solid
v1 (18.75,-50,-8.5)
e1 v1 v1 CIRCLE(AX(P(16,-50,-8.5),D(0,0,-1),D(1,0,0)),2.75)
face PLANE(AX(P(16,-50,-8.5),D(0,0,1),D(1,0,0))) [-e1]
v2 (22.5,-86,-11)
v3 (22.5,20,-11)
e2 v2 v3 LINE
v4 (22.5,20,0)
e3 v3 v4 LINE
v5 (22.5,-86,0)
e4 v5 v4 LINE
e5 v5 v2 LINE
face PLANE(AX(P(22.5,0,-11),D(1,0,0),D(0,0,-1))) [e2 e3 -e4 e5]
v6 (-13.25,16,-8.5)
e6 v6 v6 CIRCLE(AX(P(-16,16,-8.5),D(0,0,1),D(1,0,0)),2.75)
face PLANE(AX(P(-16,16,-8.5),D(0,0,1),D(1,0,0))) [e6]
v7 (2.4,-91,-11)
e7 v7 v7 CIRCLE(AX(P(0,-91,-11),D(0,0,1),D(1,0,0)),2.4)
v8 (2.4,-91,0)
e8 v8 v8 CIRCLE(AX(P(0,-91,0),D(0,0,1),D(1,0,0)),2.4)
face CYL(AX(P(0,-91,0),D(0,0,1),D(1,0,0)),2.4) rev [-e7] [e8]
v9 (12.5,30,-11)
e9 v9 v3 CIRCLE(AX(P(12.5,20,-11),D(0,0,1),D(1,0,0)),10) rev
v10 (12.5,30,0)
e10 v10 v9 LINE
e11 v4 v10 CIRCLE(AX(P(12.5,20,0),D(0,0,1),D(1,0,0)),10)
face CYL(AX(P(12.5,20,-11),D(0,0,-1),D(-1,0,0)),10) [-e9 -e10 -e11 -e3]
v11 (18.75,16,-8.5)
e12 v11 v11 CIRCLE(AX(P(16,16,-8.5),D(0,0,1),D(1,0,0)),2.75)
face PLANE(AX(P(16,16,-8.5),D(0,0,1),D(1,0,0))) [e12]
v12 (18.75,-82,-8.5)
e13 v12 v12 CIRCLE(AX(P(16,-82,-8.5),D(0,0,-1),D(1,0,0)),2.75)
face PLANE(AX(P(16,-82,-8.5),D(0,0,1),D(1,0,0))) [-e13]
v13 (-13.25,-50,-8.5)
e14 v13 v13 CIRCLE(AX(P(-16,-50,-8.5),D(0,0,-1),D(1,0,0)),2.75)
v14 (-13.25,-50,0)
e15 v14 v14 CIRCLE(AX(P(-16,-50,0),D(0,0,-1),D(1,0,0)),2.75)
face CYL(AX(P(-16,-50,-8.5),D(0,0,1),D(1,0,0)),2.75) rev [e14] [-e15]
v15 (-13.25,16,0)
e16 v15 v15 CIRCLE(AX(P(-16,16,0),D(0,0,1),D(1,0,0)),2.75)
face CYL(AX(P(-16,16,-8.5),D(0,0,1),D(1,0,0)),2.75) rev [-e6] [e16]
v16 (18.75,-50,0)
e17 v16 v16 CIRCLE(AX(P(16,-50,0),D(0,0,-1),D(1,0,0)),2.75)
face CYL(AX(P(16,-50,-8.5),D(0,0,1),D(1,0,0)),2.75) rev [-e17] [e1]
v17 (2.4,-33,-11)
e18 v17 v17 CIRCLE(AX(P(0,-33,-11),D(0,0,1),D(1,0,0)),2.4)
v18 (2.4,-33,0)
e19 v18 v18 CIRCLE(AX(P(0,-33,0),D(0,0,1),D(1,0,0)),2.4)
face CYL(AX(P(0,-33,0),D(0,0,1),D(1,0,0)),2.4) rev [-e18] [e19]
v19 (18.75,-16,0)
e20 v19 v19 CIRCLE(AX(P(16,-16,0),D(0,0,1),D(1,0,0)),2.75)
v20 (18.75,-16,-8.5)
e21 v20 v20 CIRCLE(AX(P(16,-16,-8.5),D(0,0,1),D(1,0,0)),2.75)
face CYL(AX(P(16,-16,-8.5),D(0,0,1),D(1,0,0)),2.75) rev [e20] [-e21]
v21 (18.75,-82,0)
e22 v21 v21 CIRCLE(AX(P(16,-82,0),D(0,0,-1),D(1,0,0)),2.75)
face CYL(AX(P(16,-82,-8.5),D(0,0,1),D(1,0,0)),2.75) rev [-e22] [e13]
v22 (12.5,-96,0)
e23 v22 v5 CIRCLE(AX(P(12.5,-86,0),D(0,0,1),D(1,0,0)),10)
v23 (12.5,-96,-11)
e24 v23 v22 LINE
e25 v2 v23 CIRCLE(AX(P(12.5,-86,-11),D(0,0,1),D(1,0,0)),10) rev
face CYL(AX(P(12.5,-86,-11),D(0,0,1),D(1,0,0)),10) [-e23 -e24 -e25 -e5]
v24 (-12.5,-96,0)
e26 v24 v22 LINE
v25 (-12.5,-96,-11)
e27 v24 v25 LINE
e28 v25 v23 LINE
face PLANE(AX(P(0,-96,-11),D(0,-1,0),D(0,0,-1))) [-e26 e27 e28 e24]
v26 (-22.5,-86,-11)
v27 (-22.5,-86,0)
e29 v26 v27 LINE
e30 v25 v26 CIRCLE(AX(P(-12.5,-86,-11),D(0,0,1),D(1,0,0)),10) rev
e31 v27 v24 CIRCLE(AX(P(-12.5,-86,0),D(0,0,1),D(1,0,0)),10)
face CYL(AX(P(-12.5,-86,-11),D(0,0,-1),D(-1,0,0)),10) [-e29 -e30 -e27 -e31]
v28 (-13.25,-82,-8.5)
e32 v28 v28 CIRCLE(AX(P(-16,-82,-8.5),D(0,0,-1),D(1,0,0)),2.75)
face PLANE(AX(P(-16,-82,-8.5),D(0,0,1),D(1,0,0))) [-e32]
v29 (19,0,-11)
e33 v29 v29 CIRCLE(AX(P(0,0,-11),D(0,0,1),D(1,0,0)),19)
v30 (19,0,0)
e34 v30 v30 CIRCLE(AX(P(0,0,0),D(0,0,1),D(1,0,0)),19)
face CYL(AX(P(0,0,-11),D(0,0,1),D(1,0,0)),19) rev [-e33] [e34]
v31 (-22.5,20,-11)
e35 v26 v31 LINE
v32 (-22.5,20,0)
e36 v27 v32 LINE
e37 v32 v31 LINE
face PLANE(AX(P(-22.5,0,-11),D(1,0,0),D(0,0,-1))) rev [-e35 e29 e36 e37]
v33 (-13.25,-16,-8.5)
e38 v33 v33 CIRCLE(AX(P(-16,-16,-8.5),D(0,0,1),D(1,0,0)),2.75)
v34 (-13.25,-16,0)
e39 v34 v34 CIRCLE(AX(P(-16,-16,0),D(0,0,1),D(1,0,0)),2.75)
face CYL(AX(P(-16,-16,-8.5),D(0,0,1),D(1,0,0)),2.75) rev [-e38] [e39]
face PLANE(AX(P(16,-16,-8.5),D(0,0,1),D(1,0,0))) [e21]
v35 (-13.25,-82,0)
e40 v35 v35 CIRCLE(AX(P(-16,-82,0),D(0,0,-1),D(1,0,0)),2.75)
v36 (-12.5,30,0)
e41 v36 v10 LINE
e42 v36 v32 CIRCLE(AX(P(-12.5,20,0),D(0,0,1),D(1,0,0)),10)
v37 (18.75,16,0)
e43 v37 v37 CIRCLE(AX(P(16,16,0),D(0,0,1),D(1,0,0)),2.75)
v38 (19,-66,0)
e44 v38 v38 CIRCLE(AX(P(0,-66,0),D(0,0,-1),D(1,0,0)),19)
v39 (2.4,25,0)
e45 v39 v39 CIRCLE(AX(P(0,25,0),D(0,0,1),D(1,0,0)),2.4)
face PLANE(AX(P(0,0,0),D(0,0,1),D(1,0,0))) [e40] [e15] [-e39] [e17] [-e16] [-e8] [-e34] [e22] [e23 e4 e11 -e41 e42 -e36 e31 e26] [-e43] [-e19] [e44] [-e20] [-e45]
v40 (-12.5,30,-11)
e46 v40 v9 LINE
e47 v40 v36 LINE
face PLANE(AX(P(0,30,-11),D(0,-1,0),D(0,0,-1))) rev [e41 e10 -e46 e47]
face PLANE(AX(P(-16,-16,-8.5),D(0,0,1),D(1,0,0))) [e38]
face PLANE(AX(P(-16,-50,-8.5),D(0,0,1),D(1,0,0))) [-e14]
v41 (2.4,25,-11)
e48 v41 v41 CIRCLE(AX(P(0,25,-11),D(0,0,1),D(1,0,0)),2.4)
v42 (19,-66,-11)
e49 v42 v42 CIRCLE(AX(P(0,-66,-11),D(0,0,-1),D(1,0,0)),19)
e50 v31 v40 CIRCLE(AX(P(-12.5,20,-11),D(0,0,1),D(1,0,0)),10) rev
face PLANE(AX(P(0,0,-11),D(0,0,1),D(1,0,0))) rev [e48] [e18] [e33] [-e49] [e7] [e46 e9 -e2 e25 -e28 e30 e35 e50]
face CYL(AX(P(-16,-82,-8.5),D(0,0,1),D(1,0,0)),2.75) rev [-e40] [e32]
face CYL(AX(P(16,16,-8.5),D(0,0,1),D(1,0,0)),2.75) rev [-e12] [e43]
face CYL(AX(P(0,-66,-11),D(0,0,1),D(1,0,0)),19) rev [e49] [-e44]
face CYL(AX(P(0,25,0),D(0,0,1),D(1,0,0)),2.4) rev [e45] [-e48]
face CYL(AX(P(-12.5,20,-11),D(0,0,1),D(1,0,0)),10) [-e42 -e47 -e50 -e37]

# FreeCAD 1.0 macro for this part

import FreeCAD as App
import Part
import Sketcher


def edges_at(feature, points):
    """Names of the edges that pass closest to the given points."""
    edges = feature.Shape.Edges
    near = lambda p: min(range(len(edges)), key=lambda i: edges[i].distToShape(Part.Vertex(*p))[0])
    return sorted({f"Edge{near(p) + 1}" for p in points})

doc = App.newDocument("Part")
body = doc.addObject("PartDesign::Body", "Body")

# Sketch on XY plane
sketch1 = doc.addObject("Sketcher::SketchObject", "Sketch")
body.addObject(sketch1)
sketch1.AttachmentSupport = (doc.XY_Plane, [""])
sketch1.MapMode = "FlatFace"
sketch1.addGeometry([
    Part.LineSegment(App.Vector(-22, 30, 0), App.Vector(-22, -30, 0)),
    Part.LineSegment(App.Vector(-22, -30, 0), App.Vector(22, -30, 0)),
    Part.LineSegment(App.Vector(22, -30, 0), App.Vector(22, 30, 0)),
    Part.LineSegment(App.Vector(22, 30, 0), App.Vector(-22, 30, 0)),
], False)
sketch1.addConstraint([
    Sketcher.Constraint("Coincident", 0, 2, 1, 1),
    Sketcher.Constraint("Coincident", 1, 2, 2, 1),
    Sketcher.Constraint("Coincident", 2, 2, 3, 1),
    Sketcher.Constraint("Coincident", 3, 2, 0, 1),
    Sketcher.Constraint("Vertical", 0),
    Sketcher.Constraint("Horizontal", 1),
    Sketcher.Constraint("Vertical", 2),
    Sketcher.Constraint("Horizontal", 3),
    Sketcher.Constraint("Symmetric", 0, 2, 2, 2, -1, 1),
    Sketcher.Constraint("DistanceX", 1, 1, 1, 2, 45.0),
    Sketcher.Constraint("DistanceY", 0, 2, 0, 1, 60.0),
])
pad1 = doc.addObject("PartDesign::Pad", "Pad")
body.addObject(pad1)
pad1.Profile = sketch1
pad1.Length = 11
pad1.Reversed = True

# Sketch on XY plane
sketch2 = doc.addObject("Sketcher::SketchObject", "Sketch001")
body.addObject(sketch2)
sketch2.AttachmentSupport = (doc.XY_Plane, [""])
sketch2.MapMode = "FlatFace"
sketch2.addGeometry([
    Part.Circle(App.Vector(-16, 16, 0), App.Vector(0, 0, 1), 2.8),
    Part.Circle(App.Vector(16, 16, 0), App.Vector(0, 0, 1), 2.8),
    Part.Circle(App.Vector(16, -16, 0), App.Vector(0, 0, 1), 2.8),
    Part.Circle(App.Vector(-16, -16, 0), App.Vector(0, 0, 1), 2.8),
], False)
sketch2.addConstraint([
    Sketcher.Constraint("Equal", 0, 1),
    Sketcher.Constraint("Equal", 1, 2),
    Sketcher.Constraint("Equal", 2, 3),
    Sketcher.Constraint("Symmetric", 0, 3, 2, 3, -1, 1),
    Sketcher.Constraint("Symmetric", 1, 3, 3, 3, -1, 1),
    Sketcher.Constraint("Symmetric", 0, 3, 1, 3, -2),
    Sketcher.Constraint("Diameter", 0, 5.5),
    Sketcher.Constraint("DistanceX", 0, 3, -1, 1, 16.0),
    Sketcher.Constraint("DistanceY", -1, 1, 0, 3, 16.0),
])
pocket1 = doc.addObject("PartDesign::Pocket", "Pocket")
body.addObject(pocket1)
pocket1.Profile = sketch2
pocket1.Length = 8.5

# Sketch on XY plane
sketch3 = doc.addObject("Sketcher::SketchObject", "Sketch002")
body.addObject(sketch3)
sketch3.AttachmentSupport = (doc.XY_Plane, [""])
sketch3.MapMode = "FlatFace"
sketch3.addGeometry(Part.Circle(App.Vector(0, 0, 0), App.Vector(0, 0, 1), 19), False)
sketch3.addConstraint([
    Sketcher.Constraint("Coincident", 0, 3, -1, 1),
    Sketcher.Constraint("Diameter", 0, 38.0),
])
pocket2 = doc.addObject("PartDesign::Pocket", "Pocket001")
body.addObject(pocket2)
pocket2.Profile = sketch3
pocket2.Type = "ThroughAll"

# Sketch on XZ plane
sketch4 = doc.addObject("Sketcher::SketchObject", "Sketch003")
body.addObject(sketch4)
sketch4.AttachmentSupport = (doc.XZ_Plane, [""])
sketch4.MapMode = "FlatFace"
sketch4.AttachmentOffset = App.Placement(App.Vector(0, 0, 30), App.Rotation())
sketch4.addGeometry([
    Part.LineSegment(App.Vector(-22, 0, 0), App.Vector(-22, -11, 0)),
    Part.LineSegment(App.Vector(-22, -11, 0), App.Vector(22, -11, 0)),
    Part.LineSegment(App.Vector(22, -11, 0), App.Vector(22, 0, 0)),
    Part.LineSegment(App.Vector(22, 0, 0), App.Vector(-22, 0, 0)),
], False)
sketch4.addConstraint([
    Sketcher.Constraint("Coincident", 0, 2, 1, 1),
    Sketcher.Constraint("Coincident", 1, 2, 2, 1),
    Sketcher.Constraint("Coincident", 2, 2, 3, 1),
    Sketcher.Constraint("Coincident", 3, 2, 0, 1),
    Sketcher.Constraint("Vertical", 0),
    Sketcher.Constraint("Horizontal", 1),
    Sketcher.Constraint("Vertical", 2),
    Sketcher.Constraint("Horizontal", 3),
    Sketcher.Constraint("Symmetric", 2, 2, 3, 2, -1, 1),
    Sketcher.Constraint("DistanceX", 1, 1, 1, 2, 45.0),
    Sketcher.Constraint("DistanceY", 0, 2, 0, 1, 11.0),
])
pad2 = doc.addObject("PartDesign::Pad", "Pad001")
body.addObject(pad2)
pad2.Profile = sketch4
pad2.Length = 6
doc.recompute()

datumplane = doc.addObject("PartDesign::Plane", "DatumPlane")
body.addObject(datumplane)
datumplane.AttachmentSupport = (doc.XZ_Plane, [""])
datumplane.MapMode = "FlatFace"
datumplane.AttachmentOffset = App.Placement(App.Vector(0, 0, 33), App.Rotation())
mirrored = doc.addObject("PartDesign::Mirrored", "Mirrored")
body.addObject(mirrored)
mirrored.Originals = [pad1, pocket1, pocket2]
mirrored.MirrorPlane = (datumplane, [""])
body.Tip = mirrored

# Sketch on XY plane
sketch5 = doc.addObject("Sketcher::SketchObject", "Sketch004")
body.addObject(sketch5)
sketch5.AttachmentSupport = (doc.XY_Plane, [""])
sketch5.MapMode = "FlatFace"
sketch5.addGeometry([
    Part.Circle(App.Vector(0, -91, 0), App.Vector(0, 0, 1), 2.4),
    Part.Circle(App.Vector(0, -33, 0), App.Vector(0, 0, 1), 2.4),
    Part.Circle(App.Vector(0, 25, 0), App.Vector(0, 0, 1), 2.4),
], False)
sketch5.addConstraint([
    Sketcher.Constraint("Equal", 0, 1),
    Sketcher.Constraint("Equal", 1, 2),
    Sketcher.Constraint("PointOnObject", 0, 3, -2),
    Sketcher.Constraint("PointOnObject", 1, 3, -2),
    Sketcher.Constraint("PointOnObject", 2, 3, -2),
    Sketcher.Constraint("Diameter", 0, 4.8),
    Sketcher.Constraint("DistanceY", 0, 3, -1, 1, 91.0),
    Sketcher.Constraint("DistanceY", 1, 3, -1, 1, 33.0),
    Sketcher.Constraint("DistanceY", -1, 1, 2, 3, 25.0),
])
doc.recompute()
hole = doc.addObject("PartDesign::Hole", "Hole")
body.addObject(hole)
hole.Profile = sketch5
hole.ThreadType = "None"
hole.Diameter = 4.8
hole.DepthType = "ThroughAll"
doc.recompute()

fillet = doc.addObject("PartDesign::Fillet", "Fillet")
body.addObject(fillet)
fillet.Base = (hole, edges_at(hole, [
    (22.5, -96, -5.5),
    (-22.5, -96, -5.5),
    (-22.5, 30, -5.5),
    (22.5, 30, -5.5),
]))
fillet.Radius = 10

doc.recompute()
